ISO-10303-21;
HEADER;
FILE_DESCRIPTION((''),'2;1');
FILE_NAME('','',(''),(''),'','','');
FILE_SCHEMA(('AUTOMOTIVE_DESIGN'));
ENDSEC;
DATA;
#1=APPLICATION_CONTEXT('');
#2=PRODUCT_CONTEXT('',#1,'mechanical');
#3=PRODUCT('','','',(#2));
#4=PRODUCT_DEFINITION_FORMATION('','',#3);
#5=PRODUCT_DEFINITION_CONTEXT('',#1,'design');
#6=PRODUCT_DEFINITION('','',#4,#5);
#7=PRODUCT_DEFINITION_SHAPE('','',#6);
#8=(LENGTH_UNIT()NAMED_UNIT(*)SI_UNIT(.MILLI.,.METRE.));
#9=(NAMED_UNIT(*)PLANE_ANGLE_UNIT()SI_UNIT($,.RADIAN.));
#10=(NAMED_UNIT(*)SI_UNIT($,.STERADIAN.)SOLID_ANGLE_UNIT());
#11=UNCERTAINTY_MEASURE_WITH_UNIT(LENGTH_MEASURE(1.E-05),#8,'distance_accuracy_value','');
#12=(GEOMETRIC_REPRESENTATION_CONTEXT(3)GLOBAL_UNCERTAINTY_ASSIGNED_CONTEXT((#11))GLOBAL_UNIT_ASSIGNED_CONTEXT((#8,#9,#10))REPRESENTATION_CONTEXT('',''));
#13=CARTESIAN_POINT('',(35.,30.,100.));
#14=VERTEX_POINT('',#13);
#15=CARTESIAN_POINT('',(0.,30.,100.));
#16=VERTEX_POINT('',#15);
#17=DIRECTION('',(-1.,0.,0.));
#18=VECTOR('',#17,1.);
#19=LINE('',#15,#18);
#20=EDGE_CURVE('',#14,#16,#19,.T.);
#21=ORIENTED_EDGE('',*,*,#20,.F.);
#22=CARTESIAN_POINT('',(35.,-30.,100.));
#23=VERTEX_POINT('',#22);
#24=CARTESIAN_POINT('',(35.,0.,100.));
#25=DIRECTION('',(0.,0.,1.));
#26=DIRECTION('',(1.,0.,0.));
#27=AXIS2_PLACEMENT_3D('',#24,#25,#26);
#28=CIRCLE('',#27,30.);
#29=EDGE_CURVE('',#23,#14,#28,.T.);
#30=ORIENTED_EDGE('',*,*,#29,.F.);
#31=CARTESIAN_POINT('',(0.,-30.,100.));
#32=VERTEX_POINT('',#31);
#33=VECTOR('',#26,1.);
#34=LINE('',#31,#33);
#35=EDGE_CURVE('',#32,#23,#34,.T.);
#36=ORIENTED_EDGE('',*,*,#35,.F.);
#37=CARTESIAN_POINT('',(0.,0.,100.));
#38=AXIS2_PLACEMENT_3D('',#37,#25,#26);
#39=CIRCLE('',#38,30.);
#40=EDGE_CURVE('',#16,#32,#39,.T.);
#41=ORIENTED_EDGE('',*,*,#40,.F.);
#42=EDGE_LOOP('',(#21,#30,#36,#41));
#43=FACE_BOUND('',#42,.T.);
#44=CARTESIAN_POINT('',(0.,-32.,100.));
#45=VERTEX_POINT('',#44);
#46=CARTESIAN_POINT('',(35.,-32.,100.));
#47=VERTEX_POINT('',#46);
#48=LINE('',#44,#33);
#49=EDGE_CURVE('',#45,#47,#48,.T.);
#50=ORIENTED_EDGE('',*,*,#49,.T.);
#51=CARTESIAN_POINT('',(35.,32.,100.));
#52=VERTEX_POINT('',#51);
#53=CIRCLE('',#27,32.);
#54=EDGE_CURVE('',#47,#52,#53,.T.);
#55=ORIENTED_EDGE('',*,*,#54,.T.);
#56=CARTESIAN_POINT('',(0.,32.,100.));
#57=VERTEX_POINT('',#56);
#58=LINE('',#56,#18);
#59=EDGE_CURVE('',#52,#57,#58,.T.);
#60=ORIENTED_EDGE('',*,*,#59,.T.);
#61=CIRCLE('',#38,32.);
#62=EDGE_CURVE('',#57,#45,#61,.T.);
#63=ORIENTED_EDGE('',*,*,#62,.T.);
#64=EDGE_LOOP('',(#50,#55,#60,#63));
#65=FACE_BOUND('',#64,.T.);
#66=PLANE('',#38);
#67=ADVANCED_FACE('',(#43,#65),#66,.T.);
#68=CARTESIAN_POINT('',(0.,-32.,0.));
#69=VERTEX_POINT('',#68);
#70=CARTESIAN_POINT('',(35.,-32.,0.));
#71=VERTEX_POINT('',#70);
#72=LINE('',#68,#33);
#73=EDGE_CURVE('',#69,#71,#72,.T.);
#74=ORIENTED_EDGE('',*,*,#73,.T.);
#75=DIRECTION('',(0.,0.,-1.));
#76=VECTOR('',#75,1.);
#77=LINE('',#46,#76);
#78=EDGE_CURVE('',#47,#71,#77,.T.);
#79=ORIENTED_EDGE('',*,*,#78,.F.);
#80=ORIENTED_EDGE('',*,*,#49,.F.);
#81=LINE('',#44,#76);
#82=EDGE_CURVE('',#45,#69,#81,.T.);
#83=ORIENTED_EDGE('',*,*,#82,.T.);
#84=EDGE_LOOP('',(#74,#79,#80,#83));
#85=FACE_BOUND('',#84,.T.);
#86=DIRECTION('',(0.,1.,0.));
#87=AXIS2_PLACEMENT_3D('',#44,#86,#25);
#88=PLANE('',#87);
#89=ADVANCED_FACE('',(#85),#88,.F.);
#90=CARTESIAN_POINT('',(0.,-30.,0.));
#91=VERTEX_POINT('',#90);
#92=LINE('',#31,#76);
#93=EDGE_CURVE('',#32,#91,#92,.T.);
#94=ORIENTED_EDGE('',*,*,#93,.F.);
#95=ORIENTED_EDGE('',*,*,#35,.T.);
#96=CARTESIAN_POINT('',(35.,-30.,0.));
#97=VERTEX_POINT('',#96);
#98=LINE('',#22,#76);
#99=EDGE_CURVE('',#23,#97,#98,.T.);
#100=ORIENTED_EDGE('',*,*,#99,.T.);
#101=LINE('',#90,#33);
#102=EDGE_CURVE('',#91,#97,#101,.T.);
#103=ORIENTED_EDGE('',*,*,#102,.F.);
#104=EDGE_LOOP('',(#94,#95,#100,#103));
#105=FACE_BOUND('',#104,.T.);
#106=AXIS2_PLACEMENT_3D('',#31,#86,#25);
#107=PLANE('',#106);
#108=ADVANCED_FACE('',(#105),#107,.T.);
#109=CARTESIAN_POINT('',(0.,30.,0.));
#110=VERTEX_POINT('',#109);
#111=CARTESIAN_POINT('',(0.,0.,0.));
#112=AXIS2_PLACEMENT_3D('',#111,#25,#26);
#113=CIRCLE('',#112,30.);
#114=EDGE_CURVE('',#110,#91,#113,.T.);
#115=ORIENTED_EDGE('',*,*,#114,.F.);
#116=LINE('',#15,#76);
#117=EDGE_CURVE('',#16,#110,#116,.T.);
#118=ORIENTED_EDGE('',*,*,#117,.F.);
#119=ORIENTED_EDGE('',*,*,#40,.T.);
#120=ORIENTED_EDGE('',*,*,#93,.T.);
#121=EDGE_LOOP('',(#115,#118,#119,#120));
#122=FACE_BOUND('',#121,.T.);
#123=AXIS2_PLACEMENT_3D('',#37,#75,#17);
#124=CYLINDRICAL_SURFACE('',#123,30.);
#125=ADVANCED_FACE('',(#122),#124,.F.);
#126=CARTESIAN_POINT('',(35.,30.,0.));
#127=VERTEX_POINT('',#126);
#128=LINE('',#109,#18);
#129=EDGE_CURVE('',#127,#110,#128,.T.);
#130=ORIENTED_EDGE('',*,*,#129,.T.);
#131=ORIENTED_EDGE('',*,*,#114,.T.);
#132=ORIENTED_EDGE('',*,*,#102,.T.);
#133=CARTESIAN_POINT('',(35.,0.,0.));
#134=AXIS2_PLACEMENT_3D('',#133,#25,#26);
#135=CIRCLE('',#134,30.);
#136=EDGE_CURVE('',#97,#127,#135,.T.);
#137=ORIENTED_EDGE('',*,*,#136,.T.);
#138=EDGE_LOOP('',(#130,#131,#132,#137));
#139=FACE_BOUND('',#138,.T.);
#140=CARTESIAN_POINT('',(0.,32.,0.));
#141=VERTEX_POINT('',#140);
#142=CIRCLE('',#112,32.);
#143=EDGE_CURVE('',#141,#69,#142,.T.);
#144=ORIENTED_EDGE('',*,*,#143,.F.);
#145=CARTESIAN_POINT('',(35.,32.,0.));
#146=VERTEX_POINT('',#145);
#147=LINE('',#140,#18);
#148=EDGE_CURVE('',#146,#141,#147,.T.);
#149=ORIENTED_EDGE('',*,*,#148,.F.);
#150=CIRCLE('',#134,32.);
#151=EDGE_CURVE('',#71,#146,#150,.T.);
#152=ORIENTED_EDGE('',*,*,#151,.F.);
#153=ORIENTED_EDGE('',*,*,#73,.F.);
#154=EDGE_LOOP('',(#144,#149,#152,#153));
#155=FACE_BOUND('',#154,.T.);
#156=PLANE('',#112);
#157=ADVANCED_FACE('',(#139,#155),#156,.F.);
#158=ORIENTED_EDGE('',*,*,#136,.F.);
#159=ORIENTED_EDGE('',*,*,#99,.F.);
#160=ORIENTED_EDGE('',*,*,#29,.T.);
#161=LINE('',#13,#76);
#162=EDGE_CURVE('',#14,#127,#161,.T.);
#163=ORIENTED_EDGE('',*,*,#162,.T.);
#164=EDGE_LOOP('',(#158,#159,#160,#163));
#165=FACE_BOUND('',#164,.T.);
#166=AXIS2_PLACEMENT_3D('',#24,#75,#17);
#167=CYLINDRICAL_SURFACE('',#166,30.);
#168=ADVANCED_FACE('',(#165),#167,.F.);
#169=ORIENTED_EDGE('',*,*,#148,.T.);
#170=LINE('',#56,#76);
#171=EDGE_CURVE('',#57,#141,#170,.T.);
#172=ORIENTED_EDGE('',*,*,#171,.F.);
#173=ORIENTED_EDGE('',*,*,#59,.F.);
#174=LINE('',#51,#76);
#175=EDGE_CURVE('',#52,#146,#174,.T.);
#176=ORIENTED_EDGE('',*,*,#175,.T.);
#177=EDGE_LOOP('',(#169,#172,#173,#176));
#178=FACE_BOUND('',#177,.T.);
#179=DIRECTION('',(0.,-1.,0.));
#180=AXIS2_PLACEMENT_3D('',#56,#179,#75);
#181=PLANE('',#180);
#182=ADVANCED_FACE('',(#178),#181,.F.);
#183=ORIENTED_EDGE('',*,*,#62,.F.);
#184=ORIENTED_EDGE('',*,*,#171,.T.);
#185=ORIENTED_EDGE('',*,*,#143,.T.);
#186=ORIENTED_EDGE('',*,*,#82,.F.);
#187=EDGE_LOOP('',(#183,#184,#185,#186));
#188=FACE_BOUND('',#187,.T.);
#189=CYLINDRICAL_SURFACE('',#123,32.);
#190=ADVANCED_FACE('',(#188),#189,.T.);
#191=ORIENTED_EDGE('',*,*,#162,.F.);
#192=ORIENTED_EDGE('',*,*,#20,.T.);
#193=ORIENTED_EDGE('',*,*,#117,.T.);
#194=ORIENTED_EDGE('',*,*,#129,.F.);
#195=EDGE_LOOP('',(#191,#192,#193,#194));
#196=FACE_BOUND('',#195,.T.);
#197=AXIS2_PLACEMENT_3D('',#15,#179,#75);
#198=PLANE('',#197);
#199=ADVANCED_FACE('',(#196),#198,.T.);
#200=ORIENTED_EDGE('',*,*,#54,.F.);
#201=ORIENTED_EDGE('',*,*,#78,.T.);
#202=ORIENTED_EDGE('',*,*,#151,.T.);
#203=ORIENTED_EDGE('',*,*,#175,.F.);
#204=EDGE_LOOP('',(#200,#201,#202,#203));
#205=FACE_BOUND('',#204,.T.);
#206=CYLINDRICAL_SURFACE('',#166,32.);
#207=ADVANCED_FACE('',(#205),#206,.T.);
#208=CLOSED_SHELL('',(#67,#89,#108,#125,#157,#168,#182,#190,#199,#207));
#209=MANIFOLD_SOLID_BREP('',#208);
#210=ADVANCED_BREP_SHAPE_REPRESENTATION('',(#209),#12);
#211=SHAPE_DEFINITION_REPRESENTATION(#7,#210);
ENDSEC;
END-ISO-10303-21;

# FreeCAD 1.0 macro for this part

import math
import FreeCAD as App
import Part
import Sketcher

V = App.Vector

doc = App.newDocument("Part")
params = doc.addObject("Spreadsheet::Sheet", "Params")
for row, (alias, value) in enumerate([
    ("sketch1_radius", "32 mm"),
    ("sketch1_radius2", "30 mm"),
    ("sketch1_width", "35 mm"),
    ("pad1_length", "100 mm"),
], start=1):
    params.set(f"A{row}", alias)
    params.set(f"B{row}", "=" + value)
    params.setAlias(f"B{row}", alias)

body = doc.addObject("PartDesign::Body", "Body")

sketch1 = body.newObject("Sketcher::SketchObject", "Sketch")
sketch1.AttachmentSupport = (doc.getObject("XY_Plane"), [""])
sketch1.MapMode = "FlatFace"
sketch1.addGeometry([
    Part.LineSegment(V(35, 32, 0), V(0, 32, 0)),
    Part.ArcOfCircle(Part.Circle(V(0, 0, 0), V(0, 0, 1), 32), math.radians(90), math.radians(270)),
    Part.LineSegment(V(0, -32, 0), V(35, -32, 0)),
    Part.ArcOfCircle(Part.Circle(V(35, 0, 0), V(0, 0, 1), 32), math.radians(-90), math.radians(90)),
    Part.LineSegment(V(0, 30, 0), V(35, 30, 0)),
    Part.ArcOfCircle(Part.Circle(V(35, 0, 0), V(0, 0, 1), 30), math.radians(-90), math.radians(90)),
    Part.LineSegment(V(35, -30, 0), V(0, -30, 0)),
    Part.ArcOfCircle(Part.Circle(V(0, 0, 0), V(0, 0, 1), 30), math.radians(90), math.radians(270)),
], False)
sketch1.addConstraint([
    Sketcher.Constraint("Tangent", 0, 2, 1, 1),
    Sketcher.Constraint("Tangent", 1, 2, 2, 1),
    Sketcher.Constraint("Tangent", 2, 2, 3, 1),
    Sketcher.Constraint("Tangent", 3, 2, 0, 1),
    Sketcher.Constraint("Tangent", 4, 2, 5, 2),
    Sketcher.Constraint("Tangent", 5, 1, 6, 1),
    Sketcher.Constraint("Tangent", 6, 2, 7, 2),
    Sketcher.Constraint("Tangent", 7, 1, 4, 1),
    Sketcher.Constraint("Horizontal", 0),
    Sketcher.Constraint("Horizontal", 2),
    Sketcher.Constraint("Horizontal", 4),
    Sketcher.Constraint("Horizontal", 6),
    Sketcher.Constraint("Coincident", 1, 3, -1, 1),
    Sketcher.Constraint("Coincident", 7, 3, -1, 1),
    Sketcher.Constraint("Vertical", 5, 3, 2, 2),
    Sketcher.Constraint("Radius", 1, 32.0),
    Sketcher.Constraint("Radius", 5, 30.0),
    Sketcher.Constraint("DistanceX", 0, 2, 0, 1, 35.0),
])
sketch1.setExpression("Constraints[15]", "Params.sketch1_radius")
sketch1.setExpression("Constraints[16]", "Params.sketch1_radius2")
sketch1.setExpression("Constraints[17]", "Params.sketch1_width")
pad1 = body.newObject("PartDesign::Pad", "Pad")
pad1.Profile = sketch1
pad1.setExpression("Length", "Params.pad1_length")

doc.recompute()
